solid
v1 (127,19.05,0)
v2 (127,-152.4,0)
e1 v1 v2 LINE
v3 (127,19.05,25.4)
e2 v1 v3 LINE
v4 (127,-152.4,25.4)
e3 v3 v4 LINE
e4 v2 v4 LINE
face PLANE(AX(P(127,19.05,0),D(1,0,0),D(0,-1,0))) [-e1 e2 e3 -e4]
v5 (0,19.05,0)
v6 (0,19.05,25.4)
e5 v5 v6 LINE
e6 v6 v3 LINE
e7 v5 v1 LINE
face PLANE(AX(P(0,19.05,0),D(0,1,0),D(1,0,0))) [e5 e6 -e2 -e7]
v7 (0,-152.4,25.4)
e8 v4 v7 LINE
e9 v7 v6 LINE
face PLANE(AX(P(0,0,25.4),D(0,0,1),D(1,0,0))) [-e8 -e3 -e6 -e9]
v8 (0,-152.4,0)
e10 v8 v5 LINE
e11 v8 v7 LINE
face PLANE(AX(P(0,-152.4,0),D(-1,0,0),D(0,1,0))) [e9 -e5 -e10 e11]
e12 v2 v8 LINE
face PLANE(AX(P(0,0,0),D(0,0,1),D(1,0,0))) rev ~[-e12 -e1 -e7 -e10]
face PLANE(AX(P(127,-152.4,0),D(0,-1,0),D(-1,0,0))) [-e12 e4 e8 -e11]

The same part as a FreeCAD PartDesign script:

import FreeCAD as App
import Part
import Sketcher
from FreeCAD import Vector
Q = App.Units.Quantity


def add_polygon(sketch, points):
    """Adds a closed chain of lines whose ends are joined by coincident constraints."""
    first, n = sketch.GeometryCount, len(points)
    for a, b in zip(points, points[1:] + points[:1]):
        sketch.addGeometry(Part.LineSegment(App.Vector(*a, 0), App.Vector(*b, 0)), False)
    for i in range(n):
        sketch.addConstraint(Sketcher.Constraint("Coincident", first + i, 2, first + (i + 1) % n, 1))

doc = App.newDocument("Part")
body = doc.addObject("PartDesign::Body", "Body")

# Sketch on XY plane
sketch1 = body.newObject("Sketcher::SketchObject", "Sketch")
sketch1.AttachmentSupport = (doc.getObject("XY_Plane"), [""])
sketch1.MapMode = "FlatFace"
add_polygon(sketch1, [(127, 19), (0, 19), (0, -152), (127, -152)])  # lines 0-3
sketch1.addConstraint([
    Sketcher.Constraint("Horizontal", 0),
    Sketcher.Constraint("Vertical", 1),
    Sketcher.Constraint("Horizontal", 2),
    Sketcher.Constraint("Vertical", 3),
    Sketcher.Constraint("PointOnObject", 0, 2, -2),
    Sketcher.Constraint("DistanceX", 0, 2, 0, 1, Q("5 in")),
    Sketcher.Constraint("DistanceY", 1, 2, 1, 1, Q("6.75 in")),
    Sketcher.Constraint("DistanceY", 1, 2, -1, 1, Q("6 in")),
])
pad1 = body.newObject("PartDesign::Pad", "Pad")
pad1.Profile = sketch1
pad1.Length = Q("1 in")

doc.recompute()
